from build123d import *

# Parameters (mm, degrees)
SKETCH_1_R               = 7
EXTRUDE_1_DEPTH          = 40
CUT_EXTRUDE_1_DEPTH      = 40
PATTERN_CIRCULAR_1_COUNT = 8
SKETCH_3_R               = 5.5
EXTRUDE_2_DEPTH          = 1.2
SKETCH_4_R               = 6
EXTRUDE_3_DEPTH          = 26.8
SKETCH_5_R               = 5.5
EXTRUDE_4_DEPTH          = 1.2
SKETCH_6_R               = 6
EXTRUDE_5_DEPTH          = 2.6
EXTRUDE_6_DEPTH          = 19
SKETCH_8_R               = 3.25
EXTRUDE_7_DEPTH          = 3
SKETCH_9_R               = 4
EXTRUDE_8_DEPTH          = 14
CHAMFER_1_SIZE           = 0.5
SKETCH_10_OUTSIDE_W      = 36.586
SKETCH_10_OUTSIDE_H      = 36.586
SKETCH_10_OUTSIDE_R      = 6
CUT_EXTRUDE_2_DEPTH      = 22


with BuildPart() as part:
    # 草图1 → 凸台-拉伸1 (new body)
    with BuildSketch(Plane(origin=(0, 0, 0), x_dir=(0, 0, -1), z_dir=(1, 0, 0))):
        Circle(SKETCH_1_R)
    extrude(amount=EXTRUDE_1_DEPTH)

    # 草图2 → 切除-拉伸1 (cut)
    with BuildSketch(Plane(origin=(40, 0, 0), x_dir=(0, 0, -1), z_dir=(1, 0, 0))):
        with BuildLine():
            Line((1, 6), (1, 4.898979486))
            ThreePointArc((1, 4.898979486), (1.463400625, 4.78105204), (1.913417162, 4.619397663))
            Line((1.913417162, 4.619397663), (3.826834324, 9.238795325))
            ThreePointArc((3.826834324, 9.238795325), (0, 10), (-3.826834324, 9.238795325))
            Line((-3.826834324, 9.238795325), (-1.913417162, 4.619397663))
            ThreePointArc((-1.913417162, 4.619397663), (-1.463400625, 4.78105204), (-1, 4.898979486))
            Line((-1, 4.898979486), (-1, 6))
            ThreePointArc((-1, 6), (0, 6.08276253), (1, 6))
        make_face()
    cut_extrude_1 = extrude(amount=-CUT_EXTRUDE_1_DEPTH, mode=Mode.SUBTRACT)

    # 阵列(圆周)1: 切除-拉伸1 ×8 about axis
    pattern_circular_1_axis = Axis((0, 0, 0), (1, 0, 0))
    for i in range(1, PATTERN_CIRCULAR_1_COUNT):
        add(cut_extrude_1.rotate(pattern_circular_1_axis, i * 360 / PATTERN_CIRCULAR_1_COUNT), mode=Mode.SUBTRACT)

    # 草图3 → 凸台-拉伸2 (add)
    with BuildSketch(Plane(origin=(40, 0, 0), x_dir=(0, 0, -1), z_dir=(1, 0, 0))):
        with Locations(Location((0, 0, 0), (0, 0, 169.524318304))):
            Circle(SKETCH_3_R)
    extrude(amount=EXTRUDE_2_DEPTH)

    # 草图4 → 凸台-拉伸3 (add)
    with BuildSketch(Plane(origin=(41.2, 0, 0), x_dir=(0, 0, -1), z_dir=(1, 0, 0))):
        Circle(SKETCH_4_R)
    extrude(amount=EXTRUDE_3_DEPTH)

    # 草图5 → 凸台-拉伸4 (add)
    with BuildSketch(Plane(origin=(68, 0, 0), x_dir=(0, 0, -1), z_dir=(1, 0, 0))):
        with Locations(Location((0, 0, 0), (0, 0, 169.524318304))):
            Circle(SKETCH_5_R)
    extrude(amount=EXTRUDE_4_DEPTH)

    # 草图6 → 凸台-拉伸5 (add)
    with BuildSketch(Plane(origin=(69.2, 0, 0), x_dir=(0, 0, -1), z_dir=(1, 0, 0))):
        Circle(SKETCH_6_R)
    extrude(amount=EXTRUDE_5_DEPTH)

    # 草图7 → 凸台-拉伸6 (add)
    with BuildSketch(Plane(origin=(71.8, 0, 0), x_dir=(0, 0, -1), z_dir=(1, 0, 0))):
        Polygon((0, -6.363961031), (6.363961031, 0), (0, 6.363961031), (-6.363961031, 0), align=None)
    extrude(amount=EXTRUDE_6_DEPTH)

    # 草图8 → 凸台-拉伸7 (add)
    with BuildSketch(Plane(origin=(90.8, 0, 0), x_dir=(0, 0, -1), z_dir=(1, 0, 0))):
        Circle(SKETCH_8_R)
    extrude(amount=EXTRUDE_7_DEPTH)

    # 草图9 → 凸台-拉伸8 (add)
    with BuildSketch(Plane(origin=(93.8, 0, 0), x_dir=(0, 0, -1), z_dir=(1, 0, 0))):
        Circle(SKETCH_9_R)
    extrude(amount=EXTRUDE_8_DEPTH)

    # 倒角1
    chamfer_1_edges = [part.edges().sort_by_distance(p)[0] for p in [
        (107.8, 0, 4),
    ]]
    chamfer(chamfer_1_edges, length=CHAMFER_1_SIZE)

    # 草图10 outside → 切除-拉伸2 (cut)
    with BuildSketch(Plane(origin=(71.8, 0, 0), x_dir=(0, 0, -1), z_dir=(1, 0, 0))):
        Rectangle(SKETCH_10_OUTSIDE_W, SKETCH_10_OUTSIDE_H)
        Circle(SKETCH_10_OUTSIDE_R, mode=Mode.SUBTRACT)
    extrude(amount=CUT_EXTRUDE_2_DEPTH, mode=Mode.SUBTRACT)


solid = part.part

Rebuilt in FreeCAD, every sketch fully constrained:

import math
import FreeCAD as App
import Part
import Sketcher
Q = App.Units.Quantity


def edges_at(feature, points):
    """Names of the edges that pass closest to the given points."""
    edges = feature.Shape.Edges
    near = lambda p: min(range(len(edges)), key=lambda i: edges[i].distToShape(Part.Vertex(*p))[0])
    return sorted({f"Edge{near(p) + 1}" for p in points})


def add_polygon(sketch, points):
    """Adds a closed chain of lines whose ends are joined by coincident constraints."""
    first, n = sketch.GeometryCount, len(points)
    for a, b in zip(points, points[1:] + points[:1]):
        sketch.addGeometry(Part.LineSegment(App.Vector(*a, 0), App.Vector(*b, 0)), False)
    for i in range(n):
        sketch.addConstraint(Sketcher.Constraint("Coincident", first + i, 2, first + (i + 1) % n, 1))

doc = App.newDocument("Part")
body = doc.addObject("PartDesign::Body", "Body")

sketch1 = body.newObject("Sketcher::SketchObject", "Sketch")
sketch1.AttachmentSupport = (doc.getObject("YZ_Plane"), [""])
sketch1.MapMode = "FlatFace"
sketch1.addGeometry(Part.Circle(App.Vector(0, 0, 0), App.Vector(0, 0, 1), 7), False)
sketch1.addConstraint([
    Sketcher.Constraint("Coincident", 0, 3, -1, 1),
    Sketcher.Constraint("Diameter", 0, Q("14 mm")),
])
pad1 = body.newObject("PartDesign::Pad", "Pad")
pad1.Profile = sketch1
pad1.Length = 40

sketch2 = body.newObject("Sketcher::SketchObject", "Sketch001")
sketch2.AttachmentSupport = (doc.getObject("YZ_Plane"), [""])
sketch2.MapMode = "FlatFace"
sketch2.AttachmentOffset = App.Placement(App.Vector(0, 0, 40), App.Rotation())
sketch2.addGeometry([
    Part.LineSegment(App.Vector(6, -1, 0), App.Vector(4.9, -1, 0)),
    Part.ArcOfCircle(Part.Circle(App.Vector(0, 0, 0), App.Vector(0, 0, 1), 5), math.radians(-22.5), math.radians(-11.54)),
    Part.LineSegment(App.Vector(4.6, -1.9, 0), App.Vector(9.2, -3.8, 0)),
    Part.ArcOfCircle(Part.Circle(App.Vector(0, 0, 0), App.Vector(0, 0, 1), 10), math.radians(-23), math.radians(23)),
    Part.LineSegment(App.Vector(9.2, 3.8, 0), App.Vector(4.6, 1.9, 0)),
    Part.ArcOfCircle(Part.Circle(App.Vector(0, 0, 0), App.Vector(0, 0, 1), 5), math.radians(11.54), math.radians(22.5)),
    Part.LineSegment(App.Vector(4.9, 1, 0), App.Vector(6, 1, 0)),
    Part.ArcOfCircle(Part.Circle(App.Vector(0, 0, 0), App.Vector(0, 0, 1), 6.1), math.radians(-9.46), math.radians(9.46)),
], False)
sketch2.addConstraint([
    Sketcher.Constraint("Coincident", 0, 2, 1, 2),
    Sketcher.Constraint("Coincident", 1, 1, 2, 1),
    Sketcher.Constraint("Coincident", 2, 2, 3, 1),
    Sketcher.Constraint("Coincident", 3, 2, 4, 1),
    Sketcher.Constraint("Coincident", 4, 2, 5, 2),
    Sketcher.Constraint("Coincident", 5, 1, 6, 1),
    Sketcher.Constraint("Coincident", 6, 2, 7, 2),
    Sketcher.Constraint("Coincident", 7, 1, 0, 1),
    Sketcher.Constraint("Horizontal", 0),
    Sketcher.Constraint("Horizontal", 6),
    Sketcher.Constraint("Coincident", 1, 3, -1, 1),
    Sketcher.Constraint("Coincident", 3, 3, -1, 1),
    Sketcher.Constraint("Coincident", 5, 3, -1, 1),
    Sketcher.Constraint("Coincident", 7, 3, -1, 1),
    Sketcher.Constraint("Equal", 1, 5),
    Sketcher.Constraint("Vertical", 2, 2, 3, 2),
    Sketcher.Constraint("Vertical", 1, 1, 4, 2),
    Sketcher.Constraint("Vertical", 0, 2, 5, 1),
    Sketcher.Constraint("Radius", 1, Q("5 mm")),
    Sketcher.Constraint("Radius", 3, Q("10 mm")),
    Sketcher.Constraint("DistanceY", 0, 2, -1, 1, Q("1 mm")),
    Sketcher.Constraint("DistanceX", -1, 1, 6, 2, Q("6 mm")),
    Sketcher.Constraint("Angle", 2, Q("-22.5 deg")),
    Sketcher.Constraint("DistanceX", 1, 1, 0, 2, Q("0.279582 mm")),
])
pocket1 = body.newObject("PartDesign::Pocket", "Pocket")
pocket1.Profile = sketch2
pocket1.Length = 40
doc.recompute()

polarpattern = body.newObject("PartDesign::PolarPattern", "PolarPattern")
polarpattern.Originals = [pocket1]
polarpattern.Axis = (doc.getObject("X_Axis"), [""])
polarpattern.Angle = 360
polarpattern.Occurrences = 8
body.Tip = polarpattern

sketch3 = body.newObject("Sketcher::SketchObject", "Sketch002")
sketch3.AttachmentSupport = (doc.getObject("YZ_Plane"), [""])
sketch3.MapMode = "FlatFace"
sketch3.AttachmentOffset = App.Placement(App.Vector(0, 0, 40), App.Rotation())
sketch3.addGeometry(Part.Circle(App.Vector(0, 0, 0), App.Vector(0, 0, 1), 6), False)
sketch3.addConstraint([
    Sketcher.Constraint("Coincident", 0, 3, -1, 1),
    Sketcher.Constraint("Diameter", 0, Q("11 mm")),
])
pad2 = body.newObject("PartDesign::Pad", "Pad001")
pad2.Profile = sketch3
pad2.Length = 1.2

sketch4 = body.newObject("Sketcher::SketchObject", "Sketch003")
sketch4.AttachmentSupport = (doc.getObject("YZ_Plane"), [""])
sketch4.MapMode = "FlatFace"
sketch4.AttachmentOffset = App.Placement(App.Vector(0, 0, 41.2), App.Rotation())
sketch4.addGeometry(Part.Circle(App.Vector(0, 0, 0), App.Vector(0, 0, 1), 6), False)
sketch4.addConstraint([
    Sketcher.Constraint("Coincident", 0, 3, -1, 1),
    Sketcher.Constraint("Diameter", 0, Q("12 mm")),
])
pad3 = body.newObject("PartDesign::Pad", "Pad002")
pad3.Profile = sketch4
pad3.Length = 26.8

sketch5 = body.newObject("Sketcher::SketchObject", "Sketch004")
sketch5.AttachmentSupport = (doc.getObject("YZ_Plane"), [""])
sketch5.MapMode = "FlatFace"
sketch5.AttachmentOffset = App.Placement(App.Vector(0, 0, 68), App.Rotation())
sketch5.addGeometry(Part.Circle(App.Vector(0, 0, 0), App.Vector(0, 0, 1), 6), False)
sketch5.addConstraint([
    Sketcher.Constraint("Coincident", 0, 3, -1, 1),
    Sketcher.Constraint("Diameter", 0, Q("11 mm")),
])
pad4 = body.newObject("PartDesign::Pad", "Pad003")
pad4.Profile = sketch5
pad4.Length = 1.2

sketch6 = body.newObject("Sketcher::SketchObject", "Sketch005")
sketch6.AttachmentSupport = (doc.getObject("YZ_Plane"), [""])
sketch6.MapMode = "FlatFace"
sketch6.AttachmentOffset = App.Placement(App.Vector(0, 0, 69.2), App.Rotation())
sketch6.addGeometry(Part.Circle(App.Vector(0, 0, 0), App.Vector(0, 0, 1), 6), False)
sketch6.addConstraint([
    Sketcher.Constraint("Coincident", 0, 3, -1, 1),
    Sketcher.Constraint("Diameter", 0, Q("12 mm")),
])
pad5 = body.newObject("PartDesign::Pad", "Pad004")
pad5.Profile = sketch6
pad5.Length = 2.6

sketch7 = body.newObject("Sketcher::SketchObject", "Sketch006")
sketch7.AttachmentSupport = (doc.getObject("YZ_Plane"), [""])
sketch7.MapMode = "FlatFace"
sketch7.AttachmentOffset = App.Placement(App.Vector(0, 0, 71.8), App.Rotation())
add_polygon(sketch7, [(-6, 0), (0, -6), (6, 0), (0, 6)])
sketch7.addConstraint([
    Sketcher.Constraint("Symmetric", 0, 2, 2, 2, -1, 1),
    Sketcher.Constraint("Symmetric", 1, 2, 3, 2, -1, 1),
    Sketcher.Constraint("PointOnObject", 0, 2, -2),
    Sketcher.Constraint("PointOnObject", 1, 2, -1),
    Sketcher.Constraint("Perpendicular", 0, 1),
    Sketcher.Constraint("Distance", 0, Q("9 mm")),
])
pad6 = body.newObject("PartDesign::Pad", "Pad005")
pad6.Profile = sketch7
pad6.Length = 19

sketch8 = body.newObject("Sketcher::SketchObject", "Sketch007")
sketch8.AttachmentSupport = (doc.getObject("YZ_Plane"), [""])
sketch8.MapMode = "FlatFace"
sketch8.AttachmentOffset = App.Placement(App.Vector(0, 0, 90.8), App.Rotation())
sketch8.addGeometry(Part.Circle(App.Vector(0, 0, 0), App.Vector(0, 0, 1), 3.2), False)
sketch8.addConstraint([
    Sketcher.Constraint("Coincident", 0, 3, -1, 1),
    Sketcher.Constraint("Diameter", 0, Q("6.5 mm")),
])
pad7 = body.newObject("PartDesign::Pad", "Pad006")
pad7.Profile = sketch8
pad7.Length = 3

sketch9 = body.newObject("Sketcher::SketchObject", "Sketch008")
sketch9.AttachmentSupport = (doc.getObject("YZ_Plane"), [""])
sketch9.MapMode = "FlatFace"
sketch9.AttachmentOffset = App.Placement(App.Vector(0, 0, 93.8), App.Rotation())
sketch9.addGeometry(Part.Circle(App.Vector(0, 0, 0), App.Vector(0, 0, 1), 4), False)
sketch9.addConstraint([
    Sketcher.Constraint("Coincident", 0, 3, -1, 1),
    Sketcher.Constraint("Diameter", 0, Q("8 mm")),
])
pad8 = body.newObject("PartDesign::Pad", "Pad007")
pad8.Profile = sketch9
pad8.Length = 14
doc.recompute()

chamfer = body.newObject("PartDesign::Chamfer", "Chamfer")
chamfer.Base = (pad8, edges_at(pad8, [(107.8, 0, 4)]))
chamfer.Size = 0.5

sketch10 = body.newObject("Sketcher::SketchObject", "Sketch009")
sketch10.AttachmentSupport = (doc.getObject("YZ_Plane"), [""])
sketch10.MapMode = "FlatFace"
sketch10.AttachmentOffset = App.Placement(App.Vector(0, 0, 71.8), App.Rotation())
add_polygon(sketch10, [(18, 18), (-18, 18), (-18, -18), (18, -18)])
sketch10.addGeometry(Part.Circle(App.Vector(0, 0, 0), App.Vector(0, 0, 1), 6), False)
sketch10.addConstraint([
    Sketcher.Constraint("Horizontal", 0),
    Sketcher.Constraint("Vertical", 1),
    Sketcher.Constraint("Horizontal", 2),
    Sketcher.Constraint("Vertical", 3),
    Sketcher.Constraint("Coincident", 4, 3, -1, 1),
    Sketcher.Constraint("Symmetric", 0, 2, 2, 2, -1, 1),
    Sketcher.Constraint("Equal", 2, 1),
    Sketcher.Constraint("Diameter", 4, Q("12 mm")),
    Sketcher.Constraint("DistanceX", 0, 2, 0, 1, Q("36.586 mm")),
])
pocket2 = body.newObject("PartDesign::Pocket", "Pocket001")
pocket2.Profile = sketch10
pocket2.Length = 22
pocket2.Reversed = True

doc.recompute()
